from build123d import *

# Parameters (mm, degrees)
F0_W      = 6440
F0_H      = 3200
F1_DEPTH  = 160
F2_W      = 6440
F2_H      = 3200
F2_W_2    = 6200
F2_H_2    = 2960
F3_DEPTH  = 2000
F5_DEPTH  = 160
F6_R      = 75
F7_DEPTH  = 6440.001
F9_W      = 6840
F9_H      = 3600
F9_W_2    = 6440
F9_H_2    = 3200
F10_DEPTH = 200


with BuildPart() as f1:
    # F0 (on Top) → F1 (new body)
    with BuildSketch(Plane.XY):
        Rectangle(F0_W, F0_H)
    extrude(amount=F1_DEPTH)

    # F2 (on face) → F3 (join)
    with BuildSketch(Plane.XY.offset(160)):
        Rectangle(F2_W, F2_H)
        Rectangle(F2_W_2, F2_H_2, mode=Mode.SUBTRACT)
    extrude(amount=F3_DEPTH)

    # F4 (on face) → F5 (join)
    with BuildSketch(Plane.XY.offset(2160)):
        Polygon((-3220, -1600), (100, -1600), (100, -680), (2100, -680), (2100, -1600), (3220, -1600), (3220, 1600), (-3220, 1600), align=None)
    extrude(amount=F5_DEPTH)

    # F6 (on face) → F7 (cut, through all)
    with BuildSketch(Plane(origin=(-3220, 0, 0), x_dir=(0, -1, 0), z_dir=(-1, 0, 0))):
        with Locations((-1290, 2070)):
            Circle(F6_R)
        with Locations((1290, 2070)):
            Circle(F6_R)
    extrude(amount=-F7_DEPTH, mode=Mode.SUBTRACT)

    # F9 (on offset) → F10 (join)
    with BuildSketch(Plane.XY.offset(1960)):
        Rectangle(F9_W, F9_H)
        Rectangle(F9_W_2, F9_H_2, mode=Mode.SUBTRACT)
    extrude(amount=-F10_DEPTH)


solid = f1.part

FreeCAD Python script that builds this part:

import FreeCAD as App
import Part
import Sketcher

V = App.Vector

doc = App.newDocument("Part")
body = doc.addObject("PartDesign::Body", "Body")

# Sketch on XY plane
sketch1 = body.newObject("Sketcher::SketchObject", "Sketch")
sketch1.AttachmentSupport = (doc.getObject("XY_Plane"), [""])
sketch1.MapMode = "FlatFace"
sketch1.addGeometry(Part.LineSegment(V(-3220, 1600, 0), V(-3220, -1600, 0)), False)
sketch1.addGeometry(Part.LineSegment(V(-3220, -1600, 0), V(3220, -1600, 0)), False)
sketch1.addGeometry(Part.LineSegment(V(3220, -1600, 0), V(3220, 1600, 0)), False)
sketch1.addGeometry(Part.LineSegment(V(3220, 1600, 0), V(-3220, 1600, 0)), False)
sketch1.addConstraint(Sketcher.Constraint("Coincident", 0, 2, 1, 1))
sketch1.addConstraint(Sketcher.Constraint("Coincident", 1, 2, 2, 1))
sketch1.addConstraint(Sketcher.Constraint("Coincident", 2, 2, 3, 1))
sketch1.addConstraint(Sketcher.Constraint("Coincident", 3, 2, 0, 1))
sketch1.addConstraint(Sketcher.Constraint("Vertical", 0))
sketch1.addConstraint(Sketcher.Constraint("Horizontal", 1))
sketch1.addConstraint(Sketcher.Constraint("Vertical", 2))
sketch1.addConstraint(Sketcher.Constraint("Horizontal", 3))
sketch1.addConstraint(Sketcher.Constraint("Symmetric", 0, 2, 2, 2, -1, 1))
sketch1.addConstraint(Sketcher.Constraint("DistanceX", 1, 1, 1, 2, 6440.0))
sketch1.addConstraint(Sketcher.Constraint("DistanceY", 0, 2, 0, 1, 3200.0))
pad1 = body.newObject("PartDesign::Pad", "Pad")
pad1.Profile = sketch1
pad1.Length = 160

# Sketch on XY plane
sketch2 = body.newObject("Sketcher::SketchObject", "Sketch001")
sketch2.AttachmentSupport = (doc.getObject("XY_Plane"), [""])
sketch2.MapMode = "FlatFace"
sketch2.AttachmentOffset = App.Placement(V(0, 0, 160), App.Rotation())
sketch2.addGeometry(Part.LineSegment(V(-3220, 1600, 0), V(-3220, -1600, 0)), False)
sketch2.addGeometry(Part.LineSegment(V(-3220, -1600, 0), V(3220, -1600, 0)), False)
sketch2.addGeometry(Part.LineSegment(V(3220, -1600, 0), V(3220, 1600, 0)), False)
sketch2.addGeometry(Part.LineSegment(V(3220, 1600, 0), V(-3220, 1600, 0)), False)
sketch2.addGeometry(Part.LineSegment(V(3100, -1480, 0), V(-3100, -1480, 0)), False)
sketch2.addGeometry(Part.LineSegment(V(-3100, -1480, 0), V(-3100, 1480, 0)), False)
sketch2.addGeometry(Part.LineSegment(V(-3100, 1480, 0), V(3100, 1480, 0)), False)
sketch2.addGeometry(Part.LineSegment(V(3100, 1480, 0), V(3100, -1480, 0)), False)
sketch2.addConstraint(Sketcher.Constraint("Coincident", 0, 2, 1, 1))
sketch2.addConstraint(Sketcher.Constraint("Coincident", 1, 2, 2, 1))
sketch2.addConstraint(Sketcher.Constraint("Coincident", 2, 2, 3, 1))
sketch2.addConstraint(Sketcher.Constraint("Coincident", 3, 2, 0, 1))
sketch2.addConstraint(Sketcher.Constraint("Coincident", 4, 2, 5, 1))
sketch2.addConstraint(Sketcher.Constraint("Coincident", 5, 2, 6, 1))
sketch2.addConstraint(Sketcher.Constraint("Coincident", 6, 2, 7, 1))
sketch2.addConstraint(Sketcher.Constraint("Coincident", 7, 2, 4, 1))
sketch2.addConstraint(Sketcher.Constraint("Vertical", 0))
sketch2.addConstraint(Sketcher.Constraint("Horizontal", 1))
sketch2.addConstraint(Sketcher.Constraint("Vertical", 2))
sketch2.addConstraint(Sketcher.Constraint("Horizontal", 3))
sketch2.addConstraint(Sketcher.Constraint("Horizontal", 4))
sketch2.addConstraint(Sketcher.Constraint("Vertical", 5))
sketch2.addConstraint(Sketcher.Constraint("Horizontal", 6))
sketch2.addConstraint(Sketcher.Constraint("Vertical", 7))
sketch2.addConstraint(Sketcher.Constraint("Symmetric", 0, 2, 2, 2, -1, 1))
sketch2.addConstraint(Sketcher.Constraint("Symmetric", 4, 2, 6, 2, -1, 1))
sketch2.addConstraint(Sketcher.Constraint("DistanceX", 1, 1, 1, 2, 6440.0))
sketch2.addConstraint(Sketcher.Constraint("DistanceX", 4, 2, 4, 1, 6200.0))
sketch2.addConstraint(Sketcher.Constraint("DistanceY", 0, 2, 0, 1, 3200.0))
sketch2.addConstraint(Sketcher.Constraint("DistanceY", 5, 1, 5, 2, 2960.0))
pad2 = body.newObject("PartDesign::Pad", "Pad001")
pad2.Profile = sketch2
pad2.Length = 2000

# Sketch on XY plane
sketch3 = body.newObject("Sketcher::SketchObject", "Sketch002")
sketch3.AttachmentSupport = (doc.getObject("XY_Plane"), [""])
sketch3.MapMode = "FlatFace"
sketch3.AttachmentOffset = App.Placement(V(0, 0, 2160), App.Rotation())
sketch3.addGeometry(Part.LineSegment(V(-3220, -1600, 0), V(100, -1600, 0)), False)
sketch3.addGeometry(Part.LineSegment(V(100, -1600, 0), V(100, -680, 0)), False)
sketch3.addGeometry(Part.LineSegment(V(100, -680, 0), V(2100, -680, 0)), False)
sketch3.addGeometry(Part.LineSegment(V(2100, -680, 0), V(2100, -1600, 0)), False)
sketch3.addGeometry(Part.LineSegment(V(2100, -1600, 0), V(3220, -1600, 0)), False)
sketch3.addGeometry(Part.LineSegment(V(3220, -1600, 0), V(3220, 1600, 0)), False)
sketch3.addGeometry(Part.LineSegment(V(3220, 1600, 0), V(-3220, 1600, 0)), False)
sketch3.addGeometry(Part.LineSegment(V(-3220, 1600, 0), V(-3220, -1600, 0)), False)
sketch3.addConstraint(Sketcher.Constraint("Coincident", 0, 2, 1, 1))
sketch3.addConstraint(Sketcher.Constraint("Coincident", 1, 2, 2, 1))
sketch3.addConstraint(Sketcher.Constraint("Coincident", 2, 2, 3, 1))
sketch3.addConstraint(Sketcher.Constraint("Coincident", 3, 2, 4, 1))
sketch3.addConstraint(Sketcher.Constraint("Coincident", 4, 2, 5, 1))
sketch3.addConstraint(Sketcher.Constraint("Coincident", 5, 2, 6, 1))
sketch3.addConstraint(Sketcher.Constraint("Coincident", 6, 2, 7, 1))
sketch3.addConstraint(Sketcher.Constraint("Coincident", 7, 2, 0, 1))
sketch3.addConstraint(Sketcher.Constraint("Horizontal", 0))
sketch3.addConstraint(Sketcher.Constraint("Vertical", 1))
sketch3.addConstraint(Sketcher.Constraint("Horizontal", 2))
sketch3.addConstraint(Sketcher.Constraint("Vertical", 3))
sketch3.addConstraint(Sketcher.Constraint("Horizontal", 4))
sketch3.addConstraint(Sketcher.Constraint("Vertical", 5))
sketch3.addConstraint(Sketcher.Constraint("Horizontal", 6))
sketch3.addConstraint(Sketcher.Constraint("Vertical", 7))
sketch3.addConstraint(Sketcher.Constraint("Symmetric", 4, 2, 6, 2, -1, 1))
sketch3.addConstraint(Sketcher.Constraint("Horizontal", 0, 2, 3, 2))
sketch3.addConstraint(Sketcher.Constraint("DistanceX", 0, 1, 0, 2, 3320.0))
sketch3.addConstraint(Sketcher.Constraint("DistanceX", 2, 1, 2, 2, 2000.0))
sketch3.addConstraint(Sketcher.Constraint("DistanceX", 4, 1, 4, 2, 1120.0))
sketch3.addConstraint(Sketcher.Constraint("DistanceY", 1, 1, 1, 2, 920.0))
sketch3.addConstraint(Sketcher.Constraint("DistanceY", 5, 1, 5, 2, 3200.0))
pad3 = body.newObject("PartDesign::Pad", "Pad002")
pad3.Profile = sketch3
pad3.Length = 160

# Sketch on YZ plane
sketch4 = body.newObject("Sketcher::SketchObject", "Sketch003")
sketch4.AttachmentSupport = (doc.getObject("YZ_Plane"), [""])
sketch4.MapMode = "FlatFace"
sketch4.AttachmentOffset = App.Placement(V(0, 0, -3220), App.Rotation())
sketch4.addGeometry(Part.Circle(V(1290, 2070, 0), V(0, 0, 1), 75), False)
sketch4.addGeometry(Part.Circle(V(-1290, 2070, 0), V(0, 0, 1), 75), False)
sketch4.addConstraint(Sketcher.Constraint("Equal", 0, 1))
sketch4.addConstraint(Sketcher.Constraint("Symmetric", 0, 3, 1, 3, -2))
sketch4.addConstraint(Sketcher.Constraint("Diameter", 0, 150.0))
sketch4.addConstraint(Sketcher.Constraint("DistanceX", -1, 1, 0, 3, 1290.0))
sketch4.addConstraint(Sketcher.Constraint("DistanceY", -1, 1, 0, 3, 2070.0))
pocket1 = body.newObject("PartDesign::Pocket", "Pocket")
pocket1.Profile = sketch4
pocket1.Type = "ThroughAll"
pocket1.Reversed = True

# Sketch on XY plane
sketch5 = body.newObject("Sketcher::SketchObject", "Sketch004")
sketch5.AttachmentSupport = (doc.getObject("XY_Plane"), [""])
sketch5.MapMode = "FlatFace"
sketch5.AttachmentOffset = App.Placement(V(0, 0, 1960), App.Rotation())
sketch5.addGeometry(Part.LineSegment(V(-3420, 1800, 0), V(-3420, -1800, 0)), False)
sketch5.addGeometry(Part.LineSegment(V(-3420, -1800, 0), V(3420, -1800, 0)), False)
sketch5.addGeometry(Part.LineSegment(V(3420, -1800, 0), V(3420, 1800, 0)), False)
sketch5.addGeometry(Part.LineSegment(V(3420, 1800, 0), V(-3420, 1800, 0)), False)
sketch5.addGeometry(Part.LineSegment(V(3220, -1600, 0), V(-3220, -1600, 0)), False)
sketch5.addGeometry(Part.LineSegment(V(-3220, -1600, 0), V(-3220, 1600, 0)), False)
sketch5.addGeometry(Part.LineSegment(V(-3220, 1600, 0), V(3220, 1600, 0)), False)
sketch5.addGeometry(Part.LineSegment(V(3220, 1600, 0), V(3220, -1600, 0)), False)
sketch5.addConstraint(Sketcher.Constraint("Coincident", 0, 2, 1, 1))
sketch5.addConstraint(Sketcher.Constraint("Coincident", 1, 2, 2, 1))
sketch5.addConstraint(Sketcher.Constraint("Coincident", 2, 2, 3, 1))
sketch5.addConstraint(Sketcher.Constraint("Coincident", 3, 2, 0, 1))
sketch5.addConstraint(Sketcher.Constraint("Coincident", 4, 2, 5, 1))
sketch5.addConstraint(Sketcher.Constraint("Coincident", 5, 2, 6, 1))
sketch5.addConstraint(Sketcher.Constraint("Coincident", 6, 2, 7, 1))
sketch5.addConstraint(Sketcher.Constraint("Coincident", 7, 2, 4, 1))
sketch5.addConstraint(Sketcher.Constraint("Vertical", 0))
sketch5.addConstraint(Sketcher.Constraint("Horizontal", 1))
sketch5.addConstraint(Sketcher.Constraint("Vertical", 2))
sketch5.addConstraint(Sketcher.Constraint("Horizontal", 3))
sketch5.addConstraint(Sketcher.Constraint("Horizontal", 4))
sketch5.addConstraint(Sketcher.Constraint("Vertical", 5))
sketch5.addConstraint(Sketcher.Constraint("Horizontal", 6))
sketch5.addConstraint(Sketcher.Constraint("Vertical", 7))
sketch5.addConstraint(Sketcher.Constraint("Symmetric", 0, 2, 2, 2, -1, 1))
sketch5.addConstraint(Sketcher.Constraint("Symmetric", 4, 2, 6, 2, -1, 1))
sketch5.addConstraint(Sketcher.Constraint("DistanceX", 1, 1, 1, 2, 6840.0))
sketch5.addConstraint(Sketcher.Constraint("DistanceX", 4, 2, 4, 1, 6440.0))
sketch5.addConstraint(Sketcher.Constraint("DistanceY", 0, 2, 0, 1, 3600.0))
sketch5.addConstraint(Sketcher.Constraint("DistanceY", 5, 1, 5, 2, 3200.0))
pad4 = body.newObject("PartDesign::Pad", "Pad003")
pad4.Profile = sketch5
pad4.Length = 200
pad4.Reversed = True

doc.recompute()
